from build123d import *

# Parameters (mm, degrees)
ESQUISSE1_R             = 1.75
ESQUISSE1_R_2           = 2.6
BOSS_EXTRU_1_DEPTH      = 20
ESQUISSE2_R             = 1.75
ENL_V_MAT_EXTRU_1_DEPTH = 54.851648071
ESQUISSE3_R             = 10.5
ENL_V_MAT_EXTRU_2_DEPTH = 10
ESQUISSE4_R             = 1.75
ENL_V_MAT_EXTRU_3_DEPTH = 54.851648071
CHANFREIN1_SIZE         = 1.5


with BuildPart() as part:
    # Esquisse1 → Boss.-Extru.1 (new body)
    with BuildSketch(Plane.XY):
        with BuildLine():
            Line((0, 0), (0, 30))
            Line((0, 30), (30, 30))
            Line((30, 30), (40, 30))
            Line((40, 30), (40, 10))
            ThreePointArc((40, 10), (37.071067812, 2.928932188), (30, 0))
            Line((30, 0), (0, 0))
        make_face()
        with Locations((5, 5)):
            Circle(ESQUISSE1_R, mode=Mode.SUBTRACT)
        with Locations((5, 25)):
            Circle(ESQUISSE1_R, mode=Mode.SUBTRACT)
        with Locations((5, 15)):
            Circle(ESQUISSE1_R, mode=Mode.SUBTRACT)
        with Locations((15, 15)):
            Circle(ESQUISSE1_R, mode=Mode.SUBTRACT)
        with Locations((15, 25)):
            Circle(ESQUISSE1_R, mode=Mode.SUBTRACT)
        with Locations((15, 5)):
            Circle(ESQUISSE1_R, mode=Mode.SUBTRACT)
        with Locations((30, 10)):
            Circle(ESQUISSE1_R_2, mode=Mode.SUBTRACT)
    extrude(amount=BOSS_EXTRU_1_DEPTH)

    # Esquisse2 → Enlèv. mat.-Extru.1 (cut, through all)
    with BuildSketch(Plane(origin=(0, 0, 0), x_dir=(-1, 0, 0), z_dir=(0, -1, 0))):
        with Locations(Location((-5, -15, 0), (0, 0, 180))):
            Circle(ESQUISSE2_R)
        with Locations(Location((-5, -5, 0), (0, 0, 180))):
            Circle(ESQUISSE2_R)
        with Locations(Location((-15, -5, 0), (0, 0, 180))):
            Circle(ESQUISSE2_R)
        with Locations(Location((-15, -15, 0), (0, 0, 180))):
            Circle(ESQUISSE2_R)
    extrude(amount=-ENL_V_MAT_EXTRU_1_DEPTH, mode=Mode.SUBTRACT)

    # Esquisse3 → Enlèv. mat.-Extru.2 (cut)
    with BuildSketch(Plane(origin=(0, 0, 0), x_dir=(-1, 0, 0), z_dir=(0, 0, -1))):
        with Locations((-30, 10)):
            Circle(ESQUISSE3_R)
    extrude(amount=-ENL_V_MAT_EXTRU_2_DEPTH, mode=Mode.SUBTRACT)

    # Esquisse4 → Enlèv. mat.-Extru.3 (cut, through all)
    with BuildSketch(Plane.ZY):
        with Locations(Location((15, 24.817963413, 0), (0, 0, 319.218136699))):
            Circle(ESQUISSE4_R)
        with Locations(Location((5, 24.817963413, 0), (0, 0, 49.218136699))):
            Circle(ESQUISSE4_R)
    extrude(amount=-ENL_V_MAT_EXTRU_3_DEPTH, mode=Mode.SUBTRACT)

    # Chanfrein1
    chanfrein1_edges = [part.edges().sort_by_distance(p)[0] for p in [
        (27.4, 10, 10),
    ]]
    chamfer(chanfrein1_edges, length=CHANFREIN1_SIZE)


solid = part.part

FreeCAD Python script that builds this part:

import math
import FreeCAD as App
import Part
import Sketcher


def edges_at(feature, points):
    """Names of the edges that pass closest to the given points."""
    edges = feature.Shape.Edges
    near = lambda p: min(range(len(edges)), key=lambda i: edges[i].distToShape(Part.Vertex(*p))[0])
    return sorted({f"Edge{near(p) + 1}" for p in points})

doc = App.newDocument("Part")
body = doc.addObject("PartDesign::Body", "Body")

# Sketch on XY plane
sketch1 = body.newObject("Sketcher::SketchObject", "Sketch")
sketch1.AttachmentSupport = (doc.getObject("XY_Plane"), [""])
sketch1.MapMode = "FlatFace"
sketch1.addGeometry(Part.LineSegment(App.Vector(0, 30, 0), App.Vector(0, 0, 0)), False)
sketch1.addGeometry(Part.LineSegment(App.Vector(0, 0, 0), App.Vector(30, 0, 0)), False)
sketch1.addGeometry(Part.ArcOfCircle(Part.Circle(App.Vector(30, 10, 0), App.Vector(0, 0, 1), 10), math.radians(-90), math.radians(0)), False)
sketch1.addGeometry(Part.LineSegment(App.Vector(40, 10, 0), App.Vector(40, 30, 0)), False)
sketch1.addGeometry(Part.LineSegment(App.Vector(40, 30, 0), App.Vector(0, 30, 0)), False)
sketch1.addGeometry(Part.Circle(App.Vector(30, 10, 0), App.Vector(0, 0, 1), 2.6), False)
sketch1.addGeometry(Part.Circle(App.Vector(15, 5, 0), App.Vector(0, 0, 1), 1.75), False)
sketch1.addGeometry(Part.Circle(App.Vector(5, 5, 0), App.Vector(0, 0, 1), 1.75), False)
sketch1.addGeometry(Part.Circle(App.Vector(15, 15, 0), App.Vector(0, 0, 1), 1.75), False)
sketch1.addGeometry(Part.Circle(App.Vector(5, 15, 0), App.Vector(0, 0, 1), 1.75), False)
sketch1.addGeometry(Part.Circle(App.Vector(15, 25, 0), App.Vector(0, 0, 1), 1.75), False)
sketch1.addGeometry(Part.Circle(App.Vector(5, 25, 0), App.Vector(0, 0, 1), 1.75), False)
sketch1.addConstraint(Sketcher.Constraint("Coincident", 0, 2, 1, 1))
sketch1.addConstraint(Sketcher.Constraint("Tangent", 1, 2, 2, 1))
sketch1.addConstraint(Sketcher.Constraint("Tangent", 2, 2, 3, 1))
sketch1.addConstraint(Sketcher.Constraint("Coincident", 3, 2, 4, 1))
sketch1.addConstraint(Sketcher.Constraint("Coincident", 4, 2, 0, 1))
sketch1.addConstraint(Sketcher.Constraint("Vertical", 0))
sketch1.addConstraint(Sketcher.Constraint("Horizontal", 1))
sketch1.addConstraint(Sketcher.Constraint("Vertical", 3))
sketch1.addConstraint(Sketcher.Constraint("Horizontal", 4))
sketch1.addConstraint(Sketcher.Constraint("Coincident", 0, 2, -1, 1))
sketch1.addConstraint(Sketcher.Constraint("Coincident", 5, 3, 2, 3))
sketch1.addConstraint(Sketcher.Constraint("Equal", 6, 7))
sketch1.addConstraint(Sketcher.Constraint("Equal", 7, 8))
sketch1.addConstraint(Sketcher.Constraint("Equal", 8, 9))
sketch1.addConstraint(Sketcher.Constraint("Equal", 9, 10))
sketch1.addConstraint(Sketcher.Constraint("Equal", 10, 11))
sketch1.addConstraint(Sketcher.Constraint("Horizontal", 6, 3, 7, 3))
sketch1.addConstraint(Sketcher.Constraint("Horizontal", 8, 3, 9, 3))
sketch1.addConstraint(Sketcher.Constraint("Horizontal", 10, 3, 11, 3))
sketch1.addConstraint(Sketcher.Constraint("Vertical", 6, 3, 8, 3))
sketch1.addConstraint(Sketcher.Constraint("Vertical", 7, 3, 9, 3))
sketch1.addConstraint(Sketcher.Constraint("Vertical", 8, 3, 10, 3))
sketch1.addConstraint(Sketcher.Constraint("Vertical", 9, 3, 11, 3))
sketch1.addConstraint(Sketcher.Constraint("Equal", 1, 0))
sketch1.addConstraint(Sketcher.Constraint("Radius", 2, 10.0))
sketch1.addConstraint(Sketcher.Constraint("Diameter", 5, 5.2))
sketch1.addConstraint(Sketcher.Constraint("Diameter", 6, 3.5))
sketch1.addConstraint(Sketcher.Constraint("DistanceX", 1, 1, 1, 2, 30.0))
sketch1.addConstraint(Sketcher.Constraint("DistanceX", -1, 1, 6, 3, 15.0))
sketch1.addConstraint(Sketcher.Constraint("DistanceY", -1, 1, 6, 3, 5.0))
sketch1.addConstraint(Sketcher.Constraint("DistanceX", -1, 1, 7, 3, 5.0))
sketch1.addConstraint(Sketcher.Constraint("DistanceY", -1, 1, 8, 3, 15.0))
sketch1.addConstraint(Sketcher.Constraint("DistanceY", -1, 1, 10, 3, 25.0))
pad1 = body.newObject("PartDesign::Pad", "Pad")
pad1.Profile = sketch1
pad1.Length = 20

# Sketch on XZ plane
sketch2 = body.newObject("Sketcher::SketchObject", "Sketch001")
sketch2.AttachmentSupport = (doc.getObject("XZ_Plane"), [""])
sketch2.MapMode = "FlatFace"
sketch2.addGeometry(Part.Circle(App.Vector(5, 15, 0), App.Vector(0, 0, 1), 1.75), False)
sketch2.addGeometry(Part.Circle(App.Vector(5, 5, 0), App.Vector(0, 0, 1), 1.75), False)
sketch2.addGeometry(Part.Circle(App.Vector(15, 5, 0), App.Vector(0, 0, 1), 1.75), False)
sketch2.addGeometry(Part.Circle(App.Vector(15, 15, 0), App.Vector(0, 0, 1), 1.75), False)
sketch2.addConstraint(Sketcher.Constraint("Equal", 0, 1))
sketch2.addConstraint(Sketcher.Constraint("Equal", 1, 2))
sketch2.addConstraint(Sketcher.Constraint("Equal", 2, 3))
sketch2.addConstraint(Sketcher.Constraint("Horizontal", 1, 3, 2, 3))
sketch2.addConstraint(Sketcher.Constraint("Horizontal", 0, 3, 3, 3))
sketch2.addConstraint(Sketcher.Constraint("Vertical", 0, 3, 1, 3))
sketch2.addConstraint(Sketcher.Constraint("Vertical", 2, 3, 3, 3))
sketch2.addConstraint(Sketcher.Constraint("Diameter", 0, 3.5))
sketch2.addConstraint(Sketcher.Constraint("DistanceX", -1, 1, 0, 3, 5.0))
sketch2.addConstraint(Sketcher.Constraint("DistanceY", -1, 1, 0, 3, 15.0))
sketch2.addConstraint(Sketcher.Constraint("DistanceY", -1, 1, 1, 3, 5.0))
sketch2.addConstraint(Sketcher.Constraint("DistanceX", -1, 1, 2, 3, 15.0))
pocket1 = body.newObject("PartDesign::Pocket", "Pocket")
pocket1.Profile = sketch2
pocket1.Type = "ThroughAll"

# Sketch on XY plane
sketch3 = body.newObject("Sketcher::SketchObject", "Sketch002")
sketch3.AttachmentSupport = (doc.getObject("XY_Plane"), [""])
sketch3.MapMode = "FlatFace"
sketch3.addGeometry(Part.Circle(App.Vector(30, 10, 0), App.Vector(0, 0, 1), 10.5), False)
sketch3.addConstraint(Sketcher.Constraint("Diameter", 0, 21.0))
sketch3.addConstraint(Sketcher.Constraint("DistanceX", -1, 1, 0, 3, 30.0))
sketch3.addConstraint(Sketcher.Constraint("DistanceY", -1, 1, 0, 3, 10.0))
pocket2 = body.newObject("PartDesign::Pocket", "Pocket001")
pocket2.Profile = sketch3
pocket2.Length = 10
pocket2.Reversed = True

# Sketch on YZ plane
sketch4 = body.newObject("Sketcher::SketchObject", "Sketch003")
sketch4.AttachmentSupport = (doc.getObject("YZ_Plane"), [""])
sketch4.MapMode = "FlatFace"
sketch4.addGeometry(Part.Circle(App.Vector(24.817963, 15, 0), App.Vector(0, 0, 1), 1.75), False)
sketch4.addGeometry(Part.Circle(App.Vector(24.817963, 5, 0), App.Vector(0, 0, 1), 1.75), False)
sketch4.addConstraint(Sketcher.Constraint("Equal", 0, 1))
sketch4.addConstraint(Sketcher.Constraint("Vertical", 0, 3, 1, 3))
sketch4.addConstraint(Sketcher.Constraint("Diameter", 0, 3.5))
sketch4.addConstraint(Sketcher.Constraint("DistanceY", -1, 1, 0, 3, 15.0))
sketch4.addConstraint(Sketcher.Constraint("DistanceY", -1, 1, 1, 3, 5.0))
sketch4.addConstraint(Sketcher.Constraint("DistanceX", -1, 1, 0, 3, 24.817963))
pocket3 = body.newObject("PartDesign::Pocket", "Pocket002")
pocket3.Profile = sketch4
pocket3.Type = "ThroughAll"
pocket3.Reversed = True
doc.recompute()

chamfer = body.newObject("PartDesign::Chamfer", "Chamfer")
chamfer.Base = (pocket3, edges_at(pocket3, [(27.4, 10, 10)]))
chamfer.Size = 1.5

doc.recompute()
